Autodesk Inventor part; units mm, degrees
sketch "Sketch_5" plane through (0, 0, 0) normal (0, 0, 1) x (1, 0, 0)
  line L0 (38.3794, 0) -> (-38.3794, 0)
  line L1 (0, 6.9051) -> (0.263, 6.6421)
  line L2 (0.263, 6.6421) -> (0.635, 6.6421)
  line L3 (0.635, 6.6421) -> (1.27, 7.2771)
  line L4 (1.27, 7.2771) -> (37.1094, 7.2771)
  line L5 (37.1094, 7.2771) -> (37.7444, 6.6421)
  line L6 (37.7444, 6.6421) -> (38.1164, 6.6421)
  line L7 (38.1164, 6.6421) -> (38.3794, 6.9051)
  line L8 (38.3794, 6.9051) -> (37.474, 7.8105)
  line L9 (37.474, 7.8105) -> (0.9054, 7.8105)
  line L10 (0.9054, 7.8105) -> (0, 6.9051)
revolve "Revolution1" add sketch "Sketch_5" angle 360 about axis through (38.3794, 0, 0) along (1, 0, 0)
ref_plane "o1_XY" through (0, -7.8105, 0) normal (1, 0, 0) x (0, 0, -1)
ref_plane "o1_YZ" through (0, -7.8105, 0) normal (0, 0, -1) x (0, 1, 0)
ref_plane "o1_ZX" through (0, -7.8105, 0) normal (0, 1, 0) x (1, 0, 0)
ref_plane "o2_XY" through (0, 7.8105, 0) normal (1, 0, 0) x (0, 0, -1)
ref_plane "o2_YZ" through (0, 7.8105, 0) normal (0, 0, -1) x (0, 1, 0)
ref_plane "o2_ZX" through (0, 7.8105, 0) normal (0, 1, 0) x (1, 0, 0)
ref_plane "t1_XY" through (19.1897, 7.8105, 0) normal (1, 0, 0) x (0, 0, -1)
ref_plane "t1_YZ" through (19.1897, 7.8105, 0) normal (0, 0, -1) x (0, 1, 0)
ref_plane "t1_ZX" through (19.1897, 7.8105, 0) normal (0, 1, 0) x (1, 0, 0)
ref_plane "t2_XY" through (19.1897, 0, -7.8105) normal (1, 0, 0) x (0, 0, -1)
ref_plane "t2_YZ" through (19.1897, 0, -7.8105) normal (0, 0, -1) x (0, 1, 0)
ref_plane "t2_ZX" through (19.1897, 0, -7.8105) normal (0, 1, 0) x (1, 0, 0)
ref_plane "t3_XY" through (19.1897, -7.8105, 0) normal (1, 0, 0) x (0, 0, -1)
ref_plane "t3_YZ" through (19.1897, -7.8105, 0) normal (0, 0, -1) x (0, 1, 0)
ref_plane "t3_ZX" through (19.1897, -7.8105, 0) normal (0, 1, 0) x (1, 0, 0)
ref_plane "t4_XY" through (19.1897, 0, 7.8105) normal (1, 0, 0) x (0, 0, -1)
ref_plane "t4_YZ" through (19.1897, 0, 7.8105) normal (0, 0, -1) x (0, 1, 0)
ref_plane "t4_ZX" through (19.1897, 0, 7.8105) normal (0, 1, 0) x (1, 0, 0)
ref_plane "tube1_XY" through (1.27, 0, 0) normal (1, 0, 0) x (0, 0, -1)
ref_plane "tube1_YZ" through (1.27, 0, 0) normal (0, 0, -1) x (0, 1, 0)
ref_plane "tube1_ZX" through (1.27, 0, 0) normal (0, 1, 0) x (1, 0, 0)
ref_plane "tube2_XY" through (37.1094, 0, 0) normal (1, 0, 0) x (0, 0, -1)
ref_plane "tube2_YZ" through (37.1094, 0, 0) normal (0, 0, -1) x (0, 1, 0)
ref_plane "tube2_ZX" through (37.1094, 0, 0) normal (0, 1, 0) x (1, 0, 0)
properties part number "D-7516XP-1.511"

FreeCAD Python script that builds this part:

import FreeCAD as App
import Part
import Sketcher
Q = App.Units.Quantity

doc = App.newDocument("Part")
body = doc.addObject("PartDesign::Body", "Body")

# Sketch on XY plane
sketch1 = doc.addObject("Sketcher::SketchObject", "Sketch")
body.addObject(sketch1)
sketch1.AttachmentSupport = (doc.XY_Plane, [""])
sketch1.MapMode = "FlatFace"
sketch1.addGeometry([
    Part.LineSegment(App.Vector(0.91, 7.81, 0), App.Vector(0, 6.91, 0)),  # 0
    Part.LineSegment(App.Vector(0, 6.91, 0), App.Vector(0.26, 6.64, 0)),  # 1
    Part.LineSegment(App.Vector(0.26, 6.64, 0), App.Vector(0.64, 6.64, 0)),  # 2
    Part.LineSegment(App.Vector(0.64, 6.64, 0), App.Vector(1.27, 7.28, 0)),  # 3
    Part.LineSegment(App.Vector(1.27, 7.28, 0), App.Vector(37.11, 7.28, 0)),  # 4
    Part.LineSegment(App.Vector(37.11, 7.28, 0), App.Vector(37.74, 6.64, 0)),  # 5
    Part.LineSegment(App.Vector(37.74, 6.64, 0), App.Vector(38.12, 6.64, 0)),  # 6
    Part.LineSegment(App.Vector(38.12, 6.64, 0), App.Vector(38.38, 6.91, 0)),  # 7
    Part.LineSegment(App.Vector(38.38, 6.91, 0), App.Vector(37.47, 7.81, 0)),  # 8
    Part.LineSegment(App.Vector(37.47, 7.81, 0), App.Vector(0.91, 7.81, 0)),  # 9
], False)
sketch1.addConstraint([
    Sketcher.Constraint("Coincident", 0, 2, 1, 1),
    Sketcher.Constraint("Coincident", 1, 2, 2, 1),
    Sketcher.Constraint("Coincident", 2, 2, 3, 1),
    Sketcher.Constraint("Coincident", 3, 2, 4, 1),
    Sketcher.Constraint("Coincident", 4, 2, 5, 1),
    Sketcher.Constraint("Coincident", 5, 2, 6, 1),
    Sketcher.Constraint("Coincident", 6, 2, 7, 1),
    Sketcher.Constraint("Coincident", 7, 2, 8, 1),
    Sketcher.Constraint("Coincident", 8, 2, 9, 1),
    Sketcher.Constraint("Coincident", 9, 2, 0, 1),
    Sketcher.Constraint("Horizontal", 2),
    Sketcher.Constraint("Horizontal", 4),
    Sketcher.Constraint("Horizontal", 6),
    Sketcher.Constraint("Horizontal", 9),
    Sketcher.Constraint("PointOnObject", 0, 2, -2),
    Sketcher.Constraint("Perpendicular", 0, 1),
    Sketcher.Constraint("Perpendicular", 1, 3),
    Sketcher.Constraint("Perpendicular", 3, 5),
    Sketcher.Constraint("Perpendicular", 5, 7),
    Sketcher.Constraint("Perpendicular", 7, 8),
    Sketcher.Constraint("Horizontal", 2, 2, 5, 2),
    Sketcher.Constraint("Horizontal", 0, 2, 7, 2),
    Sketcher.Constraint("Equal", 2, 6),
    Sketcher.Constraint("Equal", 3, 5),
    Sketcher.Constraint("DistanceX", 4, 1, 4, 2, Q("1.411 in")),
    Sketcher.Constraint("DistanceX", -1, 1, 3, 2, Q("0.05 in")),
    Sketcher.Constraint("DistanceX", 9, 2, 9, 1, Q("1.4397 in")),
    Sketcher.Constraint("DistanceX", -1, 1, 2, 2, Q("0.025 in")),
    Sketcher.Constraint("DistanceY", 4, 2, 8, 2, Q("0.021 in")),
    Sketcher.Constraint("DistanceY", -1, 1, 1, 2, Q("0.2615 in")),
])
revolution = doc.addObject("PartDesign::Revolution", "Revolution")
body.addObject(revolution)
revolution.Profile = sketch1
revolution.ReferenceAxis = (sketch1, ["H_Axis"])
revolution.Angle = 360

doc.recompute()
